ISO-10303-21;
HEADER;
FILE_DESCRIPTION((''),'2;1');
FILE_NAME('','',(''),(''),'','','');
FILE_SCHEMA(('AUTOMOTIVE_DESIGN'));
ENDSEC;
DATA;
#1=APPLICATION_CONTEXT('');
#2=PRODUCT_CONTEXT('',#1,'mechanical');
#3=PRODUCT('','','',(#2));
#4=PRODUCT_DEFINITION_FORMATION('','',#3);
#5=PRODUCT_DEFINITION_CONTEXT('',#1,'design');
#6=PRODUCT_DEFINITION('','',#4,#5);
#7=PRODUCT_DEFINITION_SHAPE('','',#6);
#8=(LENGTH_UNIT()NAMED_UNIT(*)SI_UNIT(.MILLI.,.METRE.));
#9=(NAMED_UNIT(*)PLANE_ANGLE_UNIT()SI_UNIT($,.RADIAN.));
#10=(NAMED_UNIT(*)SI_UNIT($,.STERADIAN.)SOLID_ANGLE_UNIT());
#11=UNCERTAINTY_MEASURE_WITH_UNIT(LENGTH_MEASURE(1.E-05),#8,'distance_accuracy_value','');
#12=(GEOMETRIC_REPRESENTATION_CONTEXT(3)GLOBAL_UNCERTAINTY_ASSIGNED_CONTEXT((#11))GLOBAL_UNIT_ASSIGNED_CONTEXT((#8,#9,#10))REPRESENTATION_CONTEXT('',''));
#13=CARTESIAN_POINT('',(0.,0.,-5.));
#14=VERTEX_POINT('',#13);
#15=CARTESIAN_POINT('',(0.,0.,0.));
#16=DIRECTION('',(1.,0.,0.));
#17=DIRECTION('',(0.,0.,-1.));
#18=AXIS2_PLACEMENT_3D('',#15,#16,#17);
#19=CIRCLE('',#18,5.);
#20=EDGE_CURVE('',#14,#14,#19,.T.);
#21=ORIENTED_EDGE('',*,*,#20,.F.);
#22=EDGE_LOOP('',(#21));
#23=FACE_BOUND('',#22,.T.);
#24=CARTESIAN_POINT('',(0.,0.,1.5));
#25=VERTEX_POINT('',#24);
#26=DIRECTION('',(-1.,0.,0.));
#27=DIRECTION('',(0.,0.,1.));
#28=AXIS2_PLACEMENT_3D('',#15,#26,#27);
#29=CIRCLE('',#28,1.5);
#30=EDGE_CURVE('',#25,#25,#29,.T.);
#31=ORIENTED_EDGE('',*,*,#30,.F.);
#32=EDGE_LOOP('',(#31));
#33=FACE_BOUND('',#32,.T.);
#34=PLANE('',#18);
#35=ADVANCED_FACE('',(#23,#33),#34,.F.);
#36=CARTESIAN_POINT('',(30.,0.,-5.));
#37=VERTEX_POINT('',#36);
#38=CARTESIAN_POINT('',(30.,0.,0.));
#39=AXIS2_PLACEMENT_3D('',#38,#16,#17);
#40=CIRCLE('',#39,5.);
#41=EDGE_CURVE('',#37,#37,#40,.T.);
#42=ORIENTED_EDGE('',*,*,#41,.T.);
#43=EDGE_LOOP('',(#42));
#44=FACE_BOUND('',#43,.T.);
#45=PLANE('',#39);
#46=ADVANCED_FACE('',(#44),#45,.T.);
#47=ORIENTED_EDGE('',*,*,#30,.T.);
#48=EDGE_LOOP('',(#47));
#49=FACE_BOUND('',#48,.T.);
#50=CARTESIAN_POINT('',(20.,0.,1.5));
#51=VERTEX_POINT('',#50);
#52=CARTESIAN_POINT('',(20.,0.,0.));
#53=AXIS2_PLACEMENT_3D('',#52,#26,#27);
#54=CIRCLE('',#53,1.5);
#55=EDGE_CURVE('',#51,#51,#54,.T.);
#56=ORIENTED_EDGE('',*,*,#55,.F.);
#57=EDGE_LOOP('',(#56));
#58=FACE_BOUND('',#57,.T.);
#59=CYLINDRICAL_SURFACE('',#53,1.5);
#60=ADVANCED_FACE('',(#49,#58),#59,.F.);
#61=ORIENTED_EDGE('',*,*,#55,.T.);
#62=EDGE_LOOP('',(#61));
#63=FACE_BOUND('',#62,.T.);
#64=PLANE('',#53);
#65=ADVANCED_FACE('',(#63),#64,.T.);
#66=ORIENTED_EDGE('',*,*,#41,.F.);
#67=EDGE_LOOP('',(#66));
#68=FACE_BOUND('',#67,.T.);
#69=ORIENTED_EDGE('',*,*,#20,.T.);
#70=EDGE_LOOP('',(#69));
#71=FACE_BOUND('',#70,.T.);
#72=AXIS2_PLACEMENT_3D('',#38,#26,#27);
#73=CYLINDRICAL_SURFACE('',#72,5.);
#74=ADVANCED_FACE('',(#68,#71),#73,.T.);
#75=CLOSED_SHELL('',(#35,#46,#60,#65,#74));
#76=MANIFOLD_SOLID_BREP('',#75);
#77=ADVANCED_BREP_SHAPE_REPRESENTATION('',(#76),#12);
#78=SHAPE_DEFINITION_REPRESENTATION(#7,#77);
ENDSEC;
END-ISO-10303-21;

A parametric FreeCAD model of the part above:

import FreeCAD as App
import Part
import Sketcher

V = App.Vector

doc = App.newDocument("Part")
params = doc.addObject("Spreadsheet::Sheet", "Params")
for row, (alias, value) in enumerate([
    ("sketch1_diameter", "10 mm"),
    ("pad1_length", "30 mm"),
    ("sketch2_diameter", "3 mm"),
    ("pocket1_length", "20 mm"),
], start=1):
    params.set(f"A{row}", alias)
    params.set(f"B{row}", "=" + value)
    params.setAlias(f"B{row}", alias)

body = doc.addObject("PartDesign::Body", "Body")

sketch1 = body.newObject("Sketcher::SketchObject", "Sketch")
sketch1.AttachmentSupport = (doc.getObject("YZ_Plane"), [""])
sketch1.MapMode = "FlatFace"
sketch1.addGeometry(Part.Circle(V(0, 0, 0), V(0, 0, 1), 5), False)
sketch1.addConstraint([
    Sketcher.Constraint("Coincident", 0, 3, -1, 1),
    Sketcher.Constraint("Diameter", 0, 10.0),
])
sketch1.setExpression("Constraints[1]", "Params.sketch1_diameter")
pad1 = body.newObject("PartDesign::Pad", "Pad")
pad1.Profile = sketch1
pad1.setExpression("Length", "Params.pad1_length")

sketch2 = body.newObject("Sketcher::SketchObject", "Sketch001")
sketch2.AttachmentSupport = (doc.getObject("YZ_Plane"), [""])
sketch2.MapMode = "FlatFace"
sketch2.addGeometry(Part.Circle(V(0, 0, 0), V(0, 0, 1), 1.5), False)
sketch2.addConstraint([
    Sketcher.Constraint("Coincident", 0, 3, -1, 1),
    Sketcher.Constraint("Diameter", 0, 3.0),
])
sketch2.setExpression("Constraints[1]", "Params.sketch2_diameter")
pocket1 = body.newObject("PartDesign::Pocket", "Pocket")
pocket1.Profile = sketch2
pocket1.setExpression("Length", "Params.pocket1_length")
pocket1.Reversed = True

doc.recompute()
